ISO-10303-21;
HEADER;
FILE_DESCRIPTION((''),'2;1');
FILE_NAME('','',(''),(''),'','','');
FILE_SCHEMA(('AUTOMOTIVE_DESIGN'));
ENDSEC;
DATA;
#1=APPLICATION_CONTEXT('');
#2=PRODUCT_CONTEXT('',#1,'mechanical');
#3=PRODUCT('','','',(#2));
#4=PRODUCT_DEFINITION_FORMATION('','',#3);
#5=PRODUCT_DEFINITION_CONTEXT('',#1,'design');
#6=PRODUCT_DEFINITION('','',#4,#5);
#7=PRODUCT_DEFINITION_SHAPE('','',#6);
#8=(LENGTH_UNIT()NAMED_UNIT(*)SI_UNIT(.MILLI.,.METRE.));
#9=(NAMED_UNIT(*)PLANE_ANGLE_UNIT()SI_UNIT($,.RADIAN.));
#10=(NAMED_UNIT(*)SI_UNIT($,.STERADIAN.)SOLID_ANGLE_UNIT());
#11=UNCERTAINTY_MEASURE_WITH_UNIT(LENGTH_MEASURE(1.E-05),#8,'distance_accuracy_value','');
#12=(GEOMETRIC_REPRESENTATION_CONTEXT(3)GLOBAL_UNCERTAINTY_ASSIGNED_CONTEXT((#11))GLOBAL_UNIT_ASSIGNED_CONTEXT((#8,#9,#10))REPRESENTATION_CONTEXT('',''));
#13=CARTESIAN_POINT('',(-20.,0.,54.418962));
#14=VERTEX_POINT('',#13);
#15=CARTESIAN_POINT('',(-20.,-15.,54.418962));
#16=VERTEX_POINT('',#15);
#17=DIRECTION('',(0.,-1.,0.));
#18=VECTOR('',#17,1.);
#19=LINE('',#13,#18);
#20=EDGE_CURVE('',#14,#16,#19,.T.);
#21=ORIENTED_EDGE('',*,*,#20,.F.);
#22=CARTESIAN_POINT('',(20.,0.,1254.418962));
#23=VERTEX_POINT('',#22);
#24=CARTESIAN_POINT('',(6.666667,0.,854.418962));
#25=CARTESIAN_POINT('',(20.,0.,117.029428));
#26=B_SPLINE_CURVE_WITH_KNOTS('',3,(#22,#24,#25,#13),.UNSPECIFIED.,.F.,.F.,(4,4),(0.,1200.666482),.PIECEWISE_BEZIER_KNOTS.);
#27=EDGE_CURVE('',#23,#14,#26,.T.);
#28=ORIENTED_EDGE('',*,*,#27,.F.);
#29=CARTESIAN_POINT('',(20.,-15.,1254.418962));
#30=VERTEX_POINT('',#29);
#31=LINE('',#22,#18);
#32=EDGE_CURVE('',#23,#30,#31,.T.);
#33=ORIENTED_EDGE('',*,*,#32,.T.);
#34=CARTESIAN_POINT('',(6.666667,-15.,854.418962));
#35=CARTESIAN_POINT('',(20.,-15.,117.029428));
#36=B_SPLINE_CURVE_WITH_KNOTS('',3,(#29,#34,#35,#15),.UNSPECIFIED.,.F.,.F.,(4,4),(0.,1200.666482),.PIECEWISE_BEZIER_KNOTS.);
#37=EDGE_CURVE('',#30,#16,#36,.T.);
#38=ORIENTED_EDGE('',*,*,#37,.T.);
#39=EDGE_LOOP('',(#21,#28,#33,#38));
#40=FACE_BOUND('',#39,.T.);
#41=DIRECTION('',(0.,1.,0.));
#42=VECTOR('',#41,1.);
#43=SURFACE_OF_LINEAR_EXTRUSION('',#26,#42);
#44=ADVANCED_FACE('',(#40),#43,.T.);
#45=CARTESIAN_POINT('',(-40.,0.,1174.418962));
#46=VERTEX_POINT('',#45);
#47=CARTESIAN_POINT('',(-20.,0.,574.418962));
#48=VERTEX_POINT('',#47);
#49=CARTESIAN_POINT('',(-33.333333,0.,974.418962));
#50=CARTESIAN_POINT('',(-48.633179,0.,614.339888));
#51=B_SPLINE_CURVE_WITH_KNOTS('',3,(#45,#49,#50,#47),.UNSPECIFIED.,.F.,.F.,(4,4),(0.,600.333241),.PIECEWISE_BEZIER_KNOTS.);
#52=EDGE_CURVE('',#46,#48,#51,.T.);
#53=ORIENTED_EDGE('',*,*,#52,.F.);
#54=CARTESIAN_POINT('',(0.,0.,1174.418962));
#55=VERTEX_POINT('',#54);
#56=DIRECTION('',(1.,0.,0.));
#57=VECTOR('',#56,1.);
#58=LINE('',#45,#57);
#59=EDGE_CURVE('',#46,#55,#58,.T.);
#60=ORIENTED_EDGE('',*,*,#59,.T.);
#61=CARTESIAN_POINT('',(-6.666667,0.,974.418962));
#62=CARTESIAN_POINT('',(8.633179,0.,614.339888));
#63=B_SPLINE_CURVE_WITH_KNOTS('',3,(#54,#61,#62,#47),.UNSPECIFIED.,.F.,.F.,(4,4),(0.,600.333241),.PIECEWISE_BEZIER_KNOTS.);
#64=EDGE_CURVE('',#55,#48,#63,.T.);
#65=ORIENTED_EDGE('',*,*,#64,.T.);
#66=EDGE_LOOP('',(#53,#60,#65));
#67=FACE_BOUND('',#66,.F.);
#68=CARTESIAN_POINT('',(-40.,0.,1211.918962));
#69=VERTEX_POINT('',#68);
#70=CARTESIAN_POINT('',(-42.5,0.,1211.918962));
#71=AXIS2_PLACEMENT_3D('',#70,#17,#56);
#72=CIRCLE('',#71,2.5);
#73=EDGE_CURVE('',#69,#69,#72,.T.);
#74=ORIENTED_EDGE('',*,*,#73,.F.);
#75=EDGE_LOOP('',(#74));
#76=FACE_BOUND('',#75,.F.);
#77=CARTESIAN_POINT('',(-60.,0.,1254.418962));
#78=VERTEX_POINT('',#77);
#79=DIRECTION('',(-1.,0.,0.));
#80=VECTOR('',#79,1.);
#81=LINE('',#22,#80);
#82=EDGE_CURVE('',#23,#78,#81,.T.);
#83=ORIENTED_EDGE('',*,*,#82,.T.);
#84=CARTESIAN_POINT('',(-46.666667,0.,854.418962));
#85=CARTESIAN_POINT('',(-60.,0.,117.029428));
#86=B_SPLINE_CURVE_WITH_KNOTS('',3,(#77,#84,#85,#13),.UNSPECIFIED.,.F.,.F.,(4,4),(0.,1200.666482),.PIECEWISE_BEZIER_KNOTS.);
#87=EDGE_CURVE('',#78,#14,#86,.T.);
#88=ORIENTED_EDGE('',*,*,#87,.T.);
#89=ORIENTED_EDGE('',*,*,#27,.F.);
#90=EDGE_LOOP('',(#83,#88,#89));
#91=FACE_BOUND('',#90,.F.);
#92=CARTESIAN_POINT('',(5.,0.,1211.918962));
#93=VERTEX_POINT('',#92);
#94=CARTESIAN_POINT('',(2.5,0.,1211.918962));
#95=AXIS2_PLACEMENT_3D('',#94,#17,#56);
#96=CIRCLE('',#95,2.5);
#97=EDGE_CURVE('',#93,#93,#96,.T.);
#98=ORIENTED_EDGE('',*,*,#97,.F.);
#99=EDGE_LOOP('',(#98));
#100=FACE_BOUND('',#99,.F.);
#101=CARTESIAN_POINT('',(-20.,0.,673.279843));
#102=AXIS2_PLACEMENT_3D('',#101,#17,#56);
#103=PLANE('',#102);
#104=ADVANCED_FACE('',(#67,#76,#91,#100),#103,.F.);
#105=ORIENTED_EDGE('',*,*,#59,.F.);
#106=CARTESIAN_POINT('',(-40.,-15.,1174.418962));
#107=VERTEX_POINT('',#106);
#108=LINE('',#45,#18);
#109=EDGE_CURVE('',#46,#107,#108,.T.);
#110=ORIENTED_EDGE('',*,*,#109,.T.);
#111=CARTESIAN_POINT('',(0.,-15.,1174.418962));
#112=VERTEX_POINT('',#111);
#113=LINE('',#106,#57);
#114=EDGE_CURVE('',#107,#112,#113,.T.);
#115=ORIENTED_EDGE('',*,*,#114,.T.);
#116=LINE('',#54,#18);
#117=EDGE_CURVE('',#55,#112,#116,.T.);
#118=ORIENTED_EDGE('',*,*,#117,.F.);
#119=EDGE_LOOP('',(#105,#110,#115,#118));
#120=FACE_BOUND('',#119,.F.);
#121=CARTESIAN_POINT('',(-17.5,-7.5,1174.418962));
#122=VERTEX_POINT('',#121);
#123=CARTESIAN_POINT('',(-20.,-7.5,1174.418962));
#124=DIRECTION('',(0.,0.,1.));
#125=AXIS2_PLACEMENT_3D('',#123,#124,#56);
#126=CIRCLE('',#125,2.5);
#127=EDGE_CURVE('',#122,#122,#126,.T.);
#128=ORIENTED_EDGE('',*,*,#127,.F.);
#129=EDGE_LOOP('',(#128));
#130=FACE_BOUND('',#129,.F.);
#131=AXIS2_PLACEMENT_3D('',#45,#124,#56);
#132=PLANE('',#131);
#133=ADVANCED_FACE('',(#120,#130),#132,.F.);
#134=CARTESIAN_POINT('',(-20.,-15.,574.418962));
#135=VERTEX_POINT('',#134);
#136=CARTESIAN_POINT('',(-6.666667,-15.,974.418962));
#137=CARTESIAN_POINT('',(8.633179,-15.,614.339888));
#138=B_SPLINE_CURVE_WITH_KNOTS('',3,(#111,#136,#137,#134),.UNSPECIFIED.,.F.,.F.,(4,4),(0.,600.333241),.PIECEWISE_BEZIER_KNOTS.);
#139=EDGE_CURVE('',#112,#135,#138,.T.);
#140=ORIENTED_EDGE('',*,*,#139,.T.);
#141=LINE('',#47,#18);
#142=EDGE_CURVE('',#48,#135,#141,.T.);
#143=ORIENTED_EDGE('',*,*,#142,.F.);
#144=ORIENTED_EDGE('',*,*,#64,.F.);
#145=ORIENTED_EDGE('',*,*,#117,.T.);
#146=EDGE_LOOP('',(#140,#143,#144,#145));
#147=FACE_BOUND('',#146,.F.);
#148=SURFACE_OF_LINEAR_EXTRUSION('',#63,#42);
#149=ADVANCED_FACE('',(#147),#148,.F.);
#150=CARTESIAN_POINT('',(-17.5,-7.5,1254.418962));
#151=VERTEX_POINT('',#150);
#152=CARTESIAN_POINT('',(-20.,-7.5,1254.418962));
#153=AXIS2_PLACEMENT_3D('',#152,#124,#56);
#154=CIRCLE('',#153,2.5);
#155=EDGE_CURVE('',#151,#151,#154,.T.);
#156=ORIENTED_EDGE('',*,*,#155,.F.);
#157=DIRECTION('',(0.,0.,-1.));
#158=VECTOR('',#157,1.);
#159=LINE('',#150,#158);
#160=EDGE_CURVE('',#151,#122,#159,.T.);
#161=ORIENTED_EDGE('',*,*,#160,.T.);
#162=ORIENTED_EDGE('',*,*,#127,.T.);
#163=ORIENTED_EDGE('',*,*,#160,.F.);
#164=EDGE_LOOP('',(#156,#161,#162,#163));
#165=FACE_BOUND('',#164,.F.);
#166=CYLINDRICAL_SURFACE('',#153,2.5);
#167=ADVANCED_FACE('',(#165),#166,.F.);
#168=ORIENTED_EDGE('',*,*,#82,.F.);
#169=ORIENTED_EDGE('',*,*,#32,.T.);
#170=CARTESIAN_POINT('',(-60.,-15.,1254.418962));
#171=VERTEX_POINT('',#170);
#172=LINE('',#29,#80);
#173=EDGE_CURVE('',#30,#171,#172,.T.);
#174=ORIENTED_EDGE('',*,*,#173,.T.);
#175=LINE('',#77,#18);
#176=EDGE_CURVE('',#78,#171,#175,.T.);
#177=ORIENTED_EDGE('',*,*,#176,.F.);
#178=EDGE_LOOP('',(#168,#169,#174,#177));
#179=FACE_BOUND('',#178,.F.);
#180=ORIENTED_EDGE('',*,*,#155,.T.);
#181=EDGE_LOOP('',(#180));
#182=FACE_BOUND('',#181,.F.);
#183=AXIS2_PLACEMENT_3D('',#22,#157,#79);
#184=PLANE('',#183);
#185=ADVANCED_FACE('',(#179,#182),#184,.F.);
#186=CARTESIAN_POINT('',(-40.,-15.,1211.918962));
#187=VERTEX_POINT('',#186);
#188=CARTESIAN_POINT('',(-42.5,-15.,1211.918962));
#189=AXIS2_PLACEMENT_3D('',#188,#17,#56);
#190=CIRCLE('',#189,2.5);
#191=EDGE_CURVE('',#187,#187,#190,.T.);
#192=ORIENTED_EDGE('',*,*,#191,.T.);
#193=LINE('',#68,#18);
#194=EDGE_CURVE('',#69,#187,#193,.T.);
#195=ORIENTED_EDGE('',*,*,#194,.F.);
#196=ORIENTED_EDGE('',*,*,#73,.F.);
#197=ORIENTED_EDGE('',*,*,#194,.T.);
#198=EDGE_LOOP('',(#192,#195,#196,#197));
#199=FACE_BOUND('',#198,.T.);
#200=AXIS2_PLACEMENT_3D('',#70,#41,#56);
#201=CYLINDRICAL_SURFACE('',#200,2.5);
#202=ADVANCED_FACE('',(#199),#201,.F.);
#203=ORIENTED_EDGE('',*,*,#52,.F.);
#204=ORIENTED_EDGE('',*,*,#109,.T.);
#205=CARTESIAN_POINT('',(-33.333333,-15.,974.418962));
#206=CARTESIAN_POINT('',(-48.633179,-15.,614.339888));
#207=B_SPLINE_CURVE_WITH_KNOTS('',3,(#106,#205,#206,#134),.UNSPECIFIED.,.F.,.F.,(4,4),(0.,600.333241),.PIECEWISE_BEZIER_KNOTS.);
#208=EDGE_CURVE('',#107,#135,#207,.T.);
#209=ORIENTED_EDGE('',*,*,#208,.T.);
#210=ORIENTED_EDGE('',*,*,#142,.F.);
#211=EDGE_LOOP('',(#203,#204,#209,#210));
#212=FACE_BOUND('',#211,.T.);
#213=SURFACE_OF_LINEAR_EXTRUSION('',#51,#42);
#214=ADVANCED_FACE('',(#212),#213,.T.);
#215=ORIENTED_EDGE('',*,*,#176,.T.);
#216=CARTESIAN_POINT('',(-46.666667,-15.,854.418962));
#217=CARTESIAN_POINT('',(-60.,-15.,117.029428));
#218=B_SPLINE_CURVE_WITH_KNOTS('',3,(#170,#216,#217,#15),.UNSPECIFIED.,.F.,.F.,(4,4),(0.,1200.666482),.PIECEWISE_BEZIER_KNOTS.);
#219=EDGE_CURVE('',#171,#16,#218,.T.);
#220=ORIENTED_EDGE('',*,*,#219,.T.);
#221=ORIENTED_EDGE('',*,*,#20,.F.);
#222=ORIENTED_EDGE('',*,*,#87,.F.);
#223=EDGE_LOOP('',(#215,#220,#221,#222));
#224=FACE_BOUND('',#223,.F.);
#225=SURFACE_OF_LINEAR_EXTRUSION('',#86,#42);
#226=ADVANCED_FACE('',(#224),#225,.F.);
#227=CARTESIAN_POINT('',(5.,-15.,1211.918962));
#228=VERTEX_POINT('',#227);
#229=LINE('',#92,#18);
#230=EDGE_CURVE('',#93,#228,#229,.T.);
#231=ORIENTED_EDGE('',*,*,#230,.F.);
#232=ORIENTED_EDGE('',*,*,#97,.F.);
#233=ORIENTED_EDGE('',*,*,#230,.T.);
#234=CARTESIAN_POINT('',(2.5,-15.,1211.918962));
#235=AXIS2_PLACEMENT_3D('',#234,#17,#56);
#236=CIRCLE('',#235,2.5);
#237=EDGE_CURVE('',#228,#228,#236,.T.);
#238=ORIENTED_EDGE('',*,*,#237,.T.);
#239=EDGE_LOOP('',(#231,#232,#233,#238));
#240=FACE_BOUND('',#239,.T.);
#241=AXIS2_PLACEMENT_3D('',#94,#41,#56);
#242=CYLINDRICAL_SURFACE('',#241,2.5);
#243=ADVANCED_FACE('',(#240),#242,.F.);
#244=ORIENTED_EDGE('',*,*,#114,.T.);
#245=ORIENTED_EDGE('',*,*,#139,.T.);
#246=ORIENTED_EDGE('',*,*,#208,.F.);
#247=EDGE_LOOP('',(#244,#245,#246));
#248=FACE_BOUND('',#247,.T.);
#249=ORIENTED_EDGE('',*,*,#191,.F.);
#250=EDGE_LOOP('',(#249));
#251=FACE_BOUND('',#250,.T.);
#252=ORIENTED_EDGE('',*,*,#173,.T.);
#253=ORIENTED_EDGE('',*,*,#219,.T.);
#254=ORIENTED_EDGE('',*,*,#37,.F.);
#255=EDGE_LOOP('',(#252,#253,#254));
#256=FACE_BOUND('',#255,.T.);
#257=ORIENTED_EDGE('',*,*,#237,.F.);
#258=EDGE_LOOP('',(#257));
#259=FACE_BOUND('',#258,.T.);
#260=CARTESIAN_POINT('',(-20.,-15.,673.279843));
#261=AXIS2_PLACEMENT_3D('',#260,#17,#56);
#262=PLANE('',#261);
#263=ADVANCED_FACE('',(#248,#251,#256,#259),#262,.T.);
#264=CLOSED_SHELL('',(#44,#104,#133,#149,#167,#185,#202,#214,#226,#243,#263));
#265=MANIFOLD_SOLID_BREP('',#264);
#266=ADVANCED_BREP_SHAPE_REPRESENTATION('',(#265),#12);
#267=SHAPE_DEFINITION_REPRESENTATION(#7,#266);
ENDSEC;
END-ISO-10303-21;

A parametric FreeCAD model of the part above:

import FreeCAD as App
import Part
import Sketcher
from FreeCAD import Vector
Q = App.Units.Quantity

doc = App.newDocument("Part")
params = doc.addObject("Spreadsheet::Sheet", "Params")
for row, (alias, value) in enumerate([
    ("sketch1_diameter", "5 mm"),
    ("pad1_length", "15 mm"),
    ("sketch2_diameter", "5 mm"),
    ("pocket1_length", "80 mm"),
], start=1):
    params.set(f"A{row}", alias)
    params.set(f"B{row}", "=" + value)
    params.setAlias(f"B{row}", alias)

body = doc.addObject("PartDesign::Body", "Body")

# Sketch on XZ plane
sketch1 = body.newObject("Sketcher::SketchObject", "Sketch")
sketch1.AttachmentSupport = (doc.getObject("XZ_Plane"), [""])
sketch1.MapMode = "FlatFace"
sketch1.addGeometry([
    Part.LineSegment(Vector(20, 1254.418962, 0), Vector(-60, 1254.418962, 0)),  # 0
    Part.BSplineCurve([Vector(-60, 1254.418962, 0), Vector(-46.666667, 854.418962, 0), Vector(-60, 117.029428, 0), Vector(-20, 54.418962, 0)], [4, 4], [0, 1200.666482], False, 3, [1, 1, 1, 1], False),  # 1
    Part.BSplineCurve([Vector(20, 1254.418962, 0), Vector(6.666667, 854.418962, 0), Vector(20, 117.029428, 0), Vector(-20, 54.418962, 0)], [4, 4], [0, 1200.666482], False, 3, [1, 1, 1, 1], False),  # 2
    Part.BSplineCurve([Vector(-40, 1174.418962, 0), Vector(-33.333333, 974.418962, 0), Vector(-48.633179, 614.339888, 0), Vector(-20, 574.418962, 0)], [4, 4], [0, 600.333241], False, 3, [1, 1, 1, 1], False),  # 3
    Part.LineSegment(Vector(-40, 1174.418962, 0), Vector(0, 1174.418962, 0)),  # 4
    Part.BSplineCurve([Vector(0, 1174.418962, 0), Vector(-6.666667, 974.418962, 0), Vector(8.633179, 614.339888, 0), Vector(-20, 574.418962, 0)], [4, 4], [0, 600.333241], False, 3, [1, 1, 1, 1], False),  # 5
    Part.Circle(Vector(-42.5, 1211.918962, 0), Vector(0, 0, 1), 2.5),  # 6
    Part.Circle(Vector(2.5, 1211.918962, 0), Vector(0, 0, 1), 2.5),  # 7
], False)
sketch1.addConstraint([
    Sketcher.Constraint("Block", 1),
    Sketcher.Constraint("Block", 2),
    Sketcher.Constraint("Block", 3),
    Sketcher.Constraint("Block", 5),
    Sketcher.Constraint("Coincident", 0, 2, 1, 1),
    Sketcher.Constraint("Coincident", 2, 1, 0, 1),
    Sketcher.Constraint("Coincident", 3, 1, 4, 1),
    Sketcher.Constraint("Coincident", 4, 2, 5, 1),
    Sketcher.Constraint("Equal", 6, 7),
    Sketcher.Constraint("Horizontal", 6, 3, 7, 3),
    Sketcher.Constraint("Diameter", 6, Q("5 mm")),
    Sketcher.Constraint("DistanceX", 6, 3, 7, 3, Q("45 mm")),
    Sketcher.Constraint("DistanceX", 6, 3, -1, 1, Q("42.5 mm")),
    Sketcher.Constraint("DistanceY", 6, 3, 0, 2, Q("42.5 mm")),
])
sketch1.setExpression("Constraints[10]", "Params.sketch1_diameter")
pad1 = body.newObject("PartDesign::Pad", "Pad")
pad1.Profile = sketch1
pad1.setExpression("Length", "Params.pad1_length")

# Sketch on XY plane
sketch2 = body.newObject("Sketcher::SketchObject", "Sketch001")
sketch2.AttachmentSupport = (doc.getObject("XY_Plane"), [""])
sketch2.MapMode = "FlatFace"
sketch2.AttachmentOffset = App.Placement(Vector(0, 0, 1254.418962), App.Rotation())
sketch2.addGeometry(Part.Circle(Vector(-20, -7.5, 0), Vector(0, 0, 1), 2.5), False)
sketch2.addConstraint([
    Sketcher.Constraint("Diameter", 0, Q("5 mm")),
    Sketcher.Constraint("DistanceX", 0, 3, -1, 1, Q("20 mm")),
    Sketcher.Constraint("DistanceY", 0, 3, -1, 1, Q("7.5 mm")),
])
sketch2.setExpression("Constraints[0]", "Params.sketch2_diameter")
pocket1 = body.newObject("PartDesign::Pocket", "Pocket")
pocket1.Profile = sketch2
pocket1.setExpression("Length", "Params.pocket1_length")

doc.recompute()
